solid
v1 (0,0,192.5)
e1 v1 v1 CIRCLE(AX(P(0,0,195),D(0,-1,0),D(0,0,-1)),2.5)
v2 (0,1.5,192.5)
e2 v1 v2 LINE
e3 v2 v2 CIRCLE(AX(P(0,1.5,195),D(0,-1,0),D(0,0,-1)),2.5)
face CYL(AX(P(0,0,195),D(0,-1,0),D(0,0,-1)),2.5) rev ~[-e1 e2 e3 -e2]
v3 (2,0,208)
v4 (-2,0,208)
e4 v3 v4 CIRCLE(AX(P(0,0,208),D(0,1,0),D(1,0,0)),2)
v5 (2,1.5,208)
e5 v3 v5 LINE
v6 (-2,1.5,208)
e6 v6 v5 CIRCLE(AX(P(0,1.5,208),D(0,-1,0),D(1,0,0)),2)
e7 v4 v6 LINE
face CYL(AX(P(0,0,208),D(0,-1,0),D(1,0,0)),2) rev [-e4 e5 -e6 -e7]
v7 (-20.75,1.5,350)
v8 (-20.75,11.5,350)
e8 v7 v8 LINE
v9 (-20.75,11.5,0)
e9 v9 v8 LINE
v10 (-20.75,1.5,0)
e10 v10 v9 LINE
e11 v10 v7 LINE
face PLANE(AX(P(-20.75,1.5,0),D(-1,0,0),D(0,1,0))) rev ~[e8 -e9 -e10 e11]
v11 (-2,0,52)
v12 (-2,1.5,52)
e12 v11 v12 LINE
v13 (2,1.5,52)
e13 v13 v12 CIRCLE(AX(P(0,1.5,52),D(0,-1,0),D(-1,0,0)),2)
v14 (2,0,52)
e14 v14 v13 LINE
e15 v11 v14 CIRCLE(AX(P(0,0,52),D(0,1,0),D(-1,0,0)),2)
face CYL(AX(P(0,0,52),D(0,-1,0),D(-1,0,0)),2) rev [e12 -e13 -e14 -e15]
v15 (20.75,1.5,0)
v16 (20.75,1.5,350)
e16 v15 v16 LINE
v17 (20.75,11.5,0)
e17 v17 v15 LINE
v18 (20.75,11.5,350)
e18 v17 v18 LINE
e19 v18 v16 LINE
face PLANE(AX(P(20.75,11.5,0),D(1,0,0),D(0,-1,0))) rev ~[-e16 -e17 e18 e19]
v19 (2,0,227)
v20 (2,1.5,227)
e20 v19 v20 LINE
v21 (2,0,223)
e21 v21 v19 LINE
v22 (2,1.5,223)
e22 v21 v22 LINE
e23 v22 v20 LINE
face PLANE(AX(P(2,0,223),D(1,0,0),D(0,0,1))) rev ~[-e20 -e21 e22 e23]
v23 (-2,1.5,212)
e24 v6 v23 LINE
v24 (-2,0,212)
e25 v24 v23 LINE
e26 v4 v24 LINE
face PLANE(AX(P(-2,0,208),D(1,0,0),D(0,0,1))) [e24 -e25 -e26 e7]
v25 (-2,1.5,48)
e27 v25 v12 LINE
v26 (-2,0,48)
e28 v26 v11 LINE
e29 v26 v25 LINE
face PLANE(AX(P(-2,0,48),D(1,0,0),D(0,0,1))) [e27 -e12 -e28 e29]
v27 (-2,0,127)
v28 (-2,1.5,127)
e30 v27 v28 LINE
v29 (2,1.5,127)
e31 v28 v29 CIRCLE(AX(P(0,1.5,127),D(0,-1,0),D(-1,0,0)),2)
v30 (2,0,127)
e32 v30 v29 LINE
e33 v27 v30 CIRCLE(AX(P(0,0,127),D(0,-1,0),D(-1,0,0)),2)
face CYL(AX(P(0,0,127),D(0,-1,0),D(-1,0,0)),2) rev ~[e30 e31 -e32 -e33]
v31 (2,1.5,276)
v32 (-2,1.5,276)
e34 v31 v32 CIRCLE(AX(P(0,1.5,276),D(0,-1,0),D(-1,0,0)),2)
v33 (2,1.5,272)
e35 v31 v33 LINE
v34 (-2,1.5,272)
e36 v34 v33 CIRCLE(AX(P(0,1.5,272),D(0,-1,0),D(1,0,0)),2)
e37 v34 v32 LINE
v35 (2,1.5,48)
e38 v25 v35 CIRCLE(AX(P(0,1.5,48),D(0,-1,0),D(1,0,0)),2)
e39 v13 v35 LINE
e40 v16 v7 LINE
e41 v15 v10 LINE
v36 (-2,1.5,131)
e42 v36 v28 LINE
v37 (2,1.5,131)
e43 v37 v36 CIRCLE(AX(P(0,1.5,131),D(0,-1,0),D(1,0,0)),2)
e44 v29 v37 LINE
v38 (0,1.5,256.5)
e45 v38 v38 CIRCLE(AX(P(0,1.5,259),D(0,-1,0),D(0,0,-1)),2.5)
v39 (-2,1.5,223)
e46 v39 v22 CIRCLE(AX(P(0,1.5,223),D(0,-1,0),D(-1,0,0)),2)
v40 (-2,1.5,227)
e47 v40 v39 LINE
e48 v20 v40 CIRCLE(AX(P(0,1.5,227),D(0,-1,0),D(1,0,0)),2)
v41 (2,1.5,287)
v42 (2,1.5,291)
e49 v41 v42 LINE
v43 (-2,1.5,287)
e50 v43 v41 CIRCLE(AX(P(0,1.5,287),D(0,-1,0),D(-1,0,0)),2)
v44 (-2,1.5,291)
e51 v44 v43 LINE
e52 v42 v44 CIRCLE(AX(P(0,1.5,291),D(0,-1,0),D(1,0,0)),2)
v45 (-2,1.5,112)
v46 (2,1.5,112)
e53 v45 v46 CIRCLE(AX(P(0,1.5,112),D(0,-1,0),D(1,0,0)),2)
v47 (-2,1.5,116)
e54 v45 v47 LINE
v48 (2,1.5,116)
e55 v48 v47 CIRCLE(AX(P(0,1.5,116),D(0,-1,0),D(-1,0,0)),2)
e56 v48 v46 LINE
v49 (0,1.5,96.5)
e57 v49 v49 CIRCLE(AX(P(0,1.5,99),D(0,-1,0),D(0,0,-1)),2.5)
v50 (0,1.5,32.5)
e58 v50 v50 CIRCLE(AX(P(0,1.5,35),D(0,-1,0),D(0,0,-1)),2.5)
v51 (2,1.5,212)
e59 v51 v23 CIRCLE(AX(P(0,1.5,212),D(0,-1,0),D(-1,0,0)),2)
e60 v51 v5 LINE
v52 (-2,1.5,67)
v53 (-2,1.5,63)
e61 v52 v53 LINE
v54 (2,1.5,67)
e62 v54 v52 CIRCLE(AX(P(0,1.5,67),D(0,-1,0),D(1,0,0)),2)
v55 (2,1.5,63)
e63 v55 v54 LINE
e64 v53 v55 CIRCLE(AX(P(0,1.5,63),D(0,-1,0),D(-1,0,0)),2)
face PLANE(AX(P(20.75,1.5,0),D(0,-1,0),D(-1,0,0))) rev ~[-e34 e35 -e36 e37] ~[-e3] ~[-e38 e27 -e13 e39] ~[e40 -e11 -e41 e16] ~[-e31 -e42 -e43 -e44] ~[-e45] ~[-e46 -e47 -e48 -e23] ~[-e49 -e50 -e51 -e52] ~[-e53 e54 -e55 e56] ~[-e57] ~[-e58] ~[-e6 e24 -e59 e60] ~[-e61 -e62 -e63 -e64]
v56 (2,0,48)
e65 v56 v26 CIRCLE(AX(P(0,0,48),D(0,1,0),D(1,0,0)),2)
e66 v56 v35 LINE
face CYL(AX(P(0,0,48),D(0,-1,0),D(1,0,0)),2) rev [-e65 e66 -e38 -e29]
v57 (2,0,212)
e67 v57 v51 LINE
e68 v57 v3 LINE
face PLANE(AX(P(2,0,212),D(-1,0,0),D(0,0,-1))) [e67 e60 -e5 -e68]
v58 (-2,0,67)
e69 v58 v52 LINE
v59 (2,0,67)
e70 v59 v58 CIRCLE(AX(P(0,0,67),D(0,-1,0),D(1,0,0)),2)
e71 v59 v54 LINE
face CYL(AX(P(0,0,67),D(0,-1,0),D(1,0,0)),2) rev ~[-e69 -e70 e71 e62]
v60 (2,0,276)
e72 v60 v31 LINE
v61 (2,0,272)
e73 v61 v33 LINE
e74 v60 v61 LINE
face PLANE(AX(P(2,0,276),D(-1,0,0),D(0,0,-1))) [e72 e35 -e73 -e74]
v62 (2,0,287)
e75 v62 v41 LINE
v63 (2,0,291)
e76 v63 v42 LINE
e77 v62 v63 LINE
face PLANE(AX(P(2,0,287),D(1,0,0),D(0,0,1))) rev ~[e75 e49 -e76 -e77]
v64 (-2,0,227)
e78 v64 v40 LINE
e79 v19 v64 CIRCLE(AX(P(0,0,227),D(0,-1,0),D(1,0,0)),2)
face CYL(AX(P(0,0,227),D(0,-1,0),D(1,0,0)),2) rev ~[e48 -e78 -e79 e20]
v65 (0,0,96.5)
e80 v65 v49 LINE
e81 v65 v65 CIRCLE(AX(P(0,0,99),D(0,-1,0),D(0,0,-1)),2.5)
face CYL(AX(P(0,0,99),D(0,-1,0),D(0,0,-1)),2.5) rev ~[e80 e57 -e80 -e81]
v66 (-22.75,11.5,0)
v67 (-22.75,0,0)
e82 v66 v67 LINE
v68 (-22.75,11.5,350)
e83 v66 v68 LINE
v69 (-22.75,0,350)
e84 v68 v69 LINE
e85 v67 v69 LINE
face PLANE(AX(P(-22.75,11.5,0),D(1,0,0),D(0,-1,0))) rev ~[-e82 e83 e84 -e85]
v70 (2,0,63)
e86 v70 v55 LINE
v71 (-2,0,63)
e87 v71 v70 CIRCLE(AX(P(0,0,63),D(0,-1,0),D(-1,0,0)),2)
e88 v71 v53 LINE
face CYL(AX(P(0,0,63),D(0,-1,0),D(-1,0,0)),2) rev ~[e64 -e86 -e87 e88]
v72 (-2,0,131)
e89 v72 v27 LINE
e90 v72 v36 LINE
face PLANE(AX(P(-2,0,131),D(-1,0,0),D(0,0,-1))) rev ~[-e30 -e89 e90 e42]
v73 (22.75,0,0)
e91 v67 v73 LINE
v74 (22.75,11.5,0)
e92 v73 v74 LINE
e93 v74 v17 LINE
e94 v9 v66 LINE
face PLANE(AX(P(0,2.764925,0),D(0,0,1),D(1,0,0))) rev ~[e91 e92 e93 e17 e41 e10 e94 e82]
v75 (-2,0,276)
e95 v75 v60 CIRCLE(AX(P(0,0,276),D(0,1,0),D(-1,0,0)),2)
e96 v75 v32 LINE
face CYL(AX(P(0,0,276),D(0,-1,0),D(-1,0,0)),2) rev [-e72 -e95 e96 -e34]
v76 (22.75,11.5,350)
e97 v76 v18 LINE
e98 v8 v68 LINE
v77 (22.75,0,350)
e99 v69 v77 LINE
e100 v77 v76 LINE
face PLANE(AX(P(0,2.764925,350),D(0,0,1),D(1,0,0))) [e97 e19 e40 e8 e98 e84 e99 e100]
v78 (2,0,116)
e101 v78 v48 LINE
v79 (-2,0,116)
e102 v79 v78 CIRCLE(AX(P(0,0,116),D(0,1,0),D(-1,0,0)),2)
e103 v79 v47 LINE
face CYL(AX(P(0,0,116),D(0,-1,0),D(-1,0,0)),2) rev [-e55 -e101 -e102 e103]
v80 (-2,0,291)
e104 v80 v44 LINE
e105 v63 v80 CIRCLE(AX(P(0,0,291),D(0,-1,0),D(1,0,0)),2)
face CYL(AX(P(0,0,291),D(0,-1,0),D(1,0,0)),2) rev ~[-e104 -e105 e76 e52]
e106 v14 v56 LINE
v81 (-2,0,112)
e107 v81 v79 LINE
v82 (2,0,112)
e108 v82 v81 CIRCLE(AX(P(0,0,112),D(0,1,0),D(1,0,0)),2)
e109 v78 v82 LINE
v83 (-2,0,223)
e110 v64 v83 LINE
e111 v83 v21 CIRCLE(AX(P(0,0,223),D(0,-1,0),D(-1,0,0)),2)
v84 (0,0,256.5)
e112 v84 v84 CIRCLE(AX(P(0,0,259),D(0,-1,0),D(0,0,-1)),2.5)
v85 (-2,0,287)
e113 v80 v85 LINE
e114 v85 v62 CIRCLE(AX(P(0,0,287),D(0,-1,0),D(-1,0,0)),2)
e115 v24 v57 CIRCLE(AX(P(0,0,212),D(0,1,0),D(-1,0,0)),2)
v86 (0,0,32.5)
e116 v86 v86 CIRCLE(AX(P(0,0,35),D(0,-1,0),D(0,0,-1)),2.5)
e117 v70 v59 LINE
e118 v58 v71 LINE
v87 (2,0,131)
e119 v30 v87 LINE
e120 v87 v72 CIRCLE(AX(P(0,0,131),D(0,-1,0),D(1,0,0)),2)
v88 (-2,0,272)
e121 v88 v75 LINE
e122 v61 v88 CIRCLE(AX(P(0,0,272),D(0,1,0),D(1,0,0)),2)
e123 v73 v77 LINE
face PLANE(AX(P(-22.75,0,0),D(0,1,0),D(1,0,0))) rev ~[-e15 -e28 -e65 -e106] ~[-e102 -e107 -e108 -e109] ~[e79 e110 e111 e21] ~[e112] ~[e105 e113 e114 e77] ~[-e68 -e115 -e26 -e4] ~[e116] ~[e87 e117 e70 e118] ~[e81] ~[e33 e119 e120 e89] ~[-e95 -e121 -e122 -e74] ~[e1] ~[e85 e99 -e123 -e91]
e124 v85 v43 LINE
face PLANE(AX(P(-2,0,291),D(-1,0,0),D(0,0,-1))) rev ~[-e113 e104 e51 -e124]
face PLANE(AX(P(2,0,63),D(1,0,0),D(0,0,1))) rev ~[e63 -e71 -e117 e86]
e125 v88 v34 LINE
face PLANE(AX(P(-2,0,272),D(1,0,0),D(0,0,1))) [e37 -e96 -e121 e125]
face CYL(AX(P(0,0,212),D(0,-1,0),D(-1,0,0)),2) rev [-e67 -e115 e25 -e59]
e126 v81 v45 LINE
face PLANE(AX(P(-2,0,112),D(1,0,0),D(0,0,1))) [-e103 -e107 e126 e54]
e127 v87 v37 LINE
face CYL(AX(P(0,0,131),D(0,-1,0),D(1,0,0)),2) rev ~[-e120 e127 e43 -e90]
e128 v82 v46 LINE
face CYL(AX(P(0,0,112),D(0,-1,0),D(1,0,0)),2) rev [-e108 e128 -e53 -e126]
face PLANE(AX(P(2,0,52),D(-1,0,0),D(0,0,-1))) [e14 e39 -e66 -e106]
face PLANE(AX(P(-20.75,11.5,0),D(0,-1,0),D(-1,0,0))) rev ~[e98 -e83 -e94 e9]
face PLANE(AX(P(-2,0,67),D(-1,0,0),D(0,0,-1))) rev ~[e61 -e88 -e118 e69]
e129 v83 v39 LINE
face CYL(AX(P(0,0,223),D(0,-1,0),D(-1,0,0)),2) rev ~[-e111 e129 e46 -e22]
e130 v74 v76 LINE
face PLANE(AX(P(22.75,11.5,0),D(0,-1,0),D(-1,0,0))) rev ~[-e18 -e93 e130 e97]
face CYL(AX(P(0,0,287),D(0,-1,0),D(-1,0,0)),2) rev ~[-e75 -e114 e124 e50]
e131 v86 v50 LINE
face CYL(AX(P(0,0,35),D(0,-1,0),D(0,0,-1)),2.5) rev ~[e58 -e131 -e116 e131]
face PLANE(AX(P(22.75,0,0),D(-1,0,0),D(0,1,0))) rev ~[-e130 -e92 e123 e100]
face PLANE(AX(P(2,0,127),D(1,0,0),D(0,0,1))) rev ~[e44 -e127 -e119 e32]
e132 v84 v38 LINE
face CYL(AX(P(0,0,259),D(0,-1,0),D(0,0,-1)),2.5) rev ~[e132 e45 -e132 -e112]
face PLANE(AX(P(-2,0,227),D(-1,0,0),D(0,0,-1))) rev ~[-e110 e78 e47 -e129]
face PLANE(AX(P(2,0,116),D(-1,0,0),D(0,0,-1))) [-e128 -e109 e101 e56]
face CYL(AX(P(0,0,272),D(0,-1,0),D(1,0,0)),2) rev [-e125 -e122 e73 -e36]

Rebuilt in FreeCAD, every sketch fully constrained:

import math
import FreeCAD as App
import Part
import Sketcher
from FreeCAD import Vector


def add_polygon(sketch, points):
    """Adds a closed chain of lines whose ends are joined by coincident constraints."""
    first, n = sketch.GeometryCount, len(points)
    for a, b in zip(points, points[1:] + points[:1]):
        sketch.addGeometry(Part.LineSegment(App.Vector(*a, 0), App.Vector(*b, 0)), False)
    for i in range(n):
        sketch.addConstraint(Sketcher.Constraint("Coincident", first + i, 2, first + (i + 1) % n, 1))

doc = App.newDocument("Part")
body = doc.addObject("PartDesign::Body", "Body")

# Sketch on XY plane
sketch1 = body.newObject("Sketcher::SketchObject", "Sketch")
sketch1.AttachmentSupport = (doc.getObject("XY_Plane"), [""])
sketch1.MapMode = "FlatFace"
add_polygon(sketch1, [(-22.8, 0), (22.8, 0), (22.8, 11.5), (20.8, 11.5), (20.8, 1.5), (-20.8, 1.5), (-20.8, 11.5), (-22.8, 11.5)])  # lines 0-7
sketch1.addConstraint(Sketcher.Constraint("Horizontal", 0))
sketch1.addConstraint(Sketcher.Constraint("Vertical", 1))
sketch1.addConstraint(Sketcher.Constraint("Horizontal", 2))
sketch1.addConstraint(Sketcher.Constraint("Vertical", 3))
sketch1.addConstraint(Sketcher.Constraint("Horizontal", 4))
sketch1.addConstraint(Sketcher.Constraint("Vertical", 5))
sketch1.addConstraint(Sketcher.Constraint("Horizontal", 6))
sketch1.addConstraint(Sketcher.Constraint("Vertical", 7))
sketch1.addConstraint(Sketcher.Constraint("Symmetric", 0, 2, 7, 2, -1, 1))
sketch1.addConstraint(Sketcher.Constraint("Symmetric", 2, 2, 5, 2, -2))
sketch1.addConstraint(Sketcher.Constraint("DistanceX", 2, 2, 2, 1, 2.0))
sketch1.addConstraint(Sketcher.Constraint("DistanceY", 3, 2, 3, 1, 10.0))
sketch1.addConstraint(Sketcher.Constraint("DistanceX", 0, 1, 0, 2, 45.5))
sketch1.addConstraint(Sketcher.Constraint("DistanceY", 1, 1, 1, 2, 11.5))
pad1 = body.newObject("PartDesign::Pad", "Pad")
pad1.Profile = sketch1
pad1.Length = 350

# Sketch on XZ plane
sketch2 = body.newObject("Sketcher::SketchObject", "Sketch001")
sketch2.AttachmentSupport = (doc.getObject("XZ_Plane"), [""])
sketch2.MapMode = "FlatFace"
sketch2.addGeometry(Part.Circle(Vector(0, 35, 0), Vector(0, 0, 1), 2.5), False)
sketch2.addGeometry(Part.LineSegment(Vector(2, 48, 0), Vector(2, 52, 0)), False)
sketch2.addGeometry(Part.ArcOfCircle(Part.Circle(Vector(0, 52, 0), Vector(0, 0, 1), 2), math.radians(0), math.radians(180)), False)
sketch2.addGeometry(Part.LineSegment(Vector(-2, 52, 0), Vector(-2, 48, 0)), False)
sketch2.addGeometry(Part.ArcOfCircle(Part.Circle(Vector(0, 48, 0), Vector(0, 0, 1), 2), math.radians(180), math.radians(360)), False)
sketch2.addGeometry(Part.LineSegment(Vector(-2, 67, 0), Vector(-2, 63, 0)), False)
sketch2.addGeometry(Part.ArcOfCircle(Part.Circle(Vector(0, 63, 0), Vector(0, 0, 1), 2), math.radians(180), math.radians(360)), False)
sketch2.addGeometry(Part.LineSegment(Vector(2, 63, 0), Vector(2, 67, 0)), False)
sketch2.addGeometry(Part.ArcOfCircle(Part.Circle(Vector(0, 67, 0), Vector(0, 0, 1), 2), math.radians(0), math.radians(180)), False)
sketch2.addConstraint(Sketcher.Constraint("Tangent", 1, 2, 2, 1))
sketch2.addConstraint(Sketcher.Constraint("Tangent", 2, 2, 3, 1))
sketch2.addConstraint(Sketcher.Constraint("Tangent", 3, 2, 4, 1))
sketch2.addConstraint(Sketcher.Constraint("Tangent", 4, 2, 1, 1))
sketch2.addConstraint(Sketcher.Constraint("Tangent", 5, 2, 6, 1))
sketch2.addConstraint(Sketcher.Constraint("Tangent", 6, 2, 7, 1))
sketch2.addConstraint(Sketcher.Constraint("Tangent", 7, 2, 8, 1))
sketch2.addConstraint(Sketcher.Constraint("Tangent", 8, 2, 5, 1))
sketch2.addConstraint(Sketcher.Constraint("Vertical", 1))
sketch2.addConstraint(Sketcher.Constraint("Vertical", 3))
sketch2.addConstraint(Sketcher.Constraint("Vertical", 5))
sketch2.addConstraint(Sketcher.Constraint("Vertical", 7))
sketch2.addConstraint(Sketcher.Constraint("Equal", 4, 6))
sketch2.addConstraint(Sketcher.Constraint("PointOnObject", 0, 3, -2))
sketch2.addConstraint(Sketcher.Constraint("PointOnObject", 2, 3, -2))
sketch2.addConstraint(Sketcher.Constraint("PointOnObject", 6, 3, -2))
sketch2.addConstraint(Sketcher.Constraint("Equal", 3, 5))
sketch2.addConstraint(Sketcher.Constraint("Diameter", 0, 5.0))
sketch2.addConstraint(Sketcher.Constraint("Radius", 2, 2.0))
sketch2.addConstraint(Sketcher.Constraint("DistanceY", 1, 1, 1, 2, 4.0))
sketch2.addConstraint(Sketcher.Constraint("DistanceY", -1, 1, 0, 3, 35.0))
sketch2.addConstraint(Sketcher.Constraint("DistanceY", -1, 1, 2, 3, 52.0))
sketch2.addConstraint(Sketcher.Constraint("DistanceY", -1, 1, 6, 3, 63.0))
pocket1 = body.newObject("PartDesign::Pocket", "Pocket")
pocket1.Profile = sketch2
pocket1.Length = 350
doc.recompute()

linearpattern = body.newObject("PartDesign::LinearPattern", "LinearPattern")
linearpattern.Originals = [pocket1]
linearpattern.Direction = (doc.getObject("Z_Axis"), [""])
linearpattern.Mode = "offset"
linearpattern.Offset = 64
linearpattern.Occurrences = 2
body.Tip = linearpattern
doc.recompute()

linearpattern2 = body.newObject("PartDesign::LinearPattern", "LinearPattern001")
linearpattern2.Originals = [pocket1]
linearpattern2.Direction = (doc.getObject("Z_Axis"), [""])
linearpattern2.Mode = "offset"
linearpattern2.Offset = 160
linearpattern2.Occurrences = 2
body.Tip = linearpattern2

# Sketch on XZ plane
sketch3 = body.newObject("Sketcher::SketchObject", "Sketch002")
sketch3.AttachmentSupport = (doc.getObject("XZ_Plane"), [""])
sketch3.MapMode = "FlatFace"
sketch3.addGeometry(Part.Circle(Vector(0, 259, 0), Vector(0, 0, 1), 2.5), False)
sketch3.addGeometry(Part.LineSegment(Vector(2, 272, 0), Vector(2, 276, 0)), False)
sketch3.addGeometry(Part.ArcOfCircle(Part.Circle(Vector(0, 276, 0), Vector(0, 0, 1), 2), math.radians(0), math.radians(180)), False)
sketch3.addGeometry(Part.LineSegment(Vector(-2, 276, 0), Vector(-2, 272, 0)), False)
sketch3.addGeometry(Part.ArcOfCircle(Part.Circle(Vector(0, 272, 0), Vector(0, 0, 1), 2), math.radians(180), math.radians(360)), False)
sketch3.addGeometry(Part.LineSegment(Vector(-2, 291, 0), Vector(-2, 287, 0)), False)
sketch3.addGeometry(Part.ArcOfCircle(Part.Circle(Vector(0, 287, 0), Vector(0, 0, 1), 2), math.radians(180), math.radians(360)), False)
sketch3.addGeometry(Part.LineSegment(Vector(2, 287, 0), Vector(2, 291, 0)), False)
sketch3.addGeometry(Part.ArcOfCircle(Part.Circle(Vector(0, 291, 0), Vector(0, 0, 1), 2), math.radians(0), math.radians(180)), False)
sketch3.addConstraint(Sketcher.Constraint("Tangent", 1, 2, 2, 1))
sketch3.addConstraint(Sketcher.Constraint("Tangent", 2, 2, 3, 1))
sketch3.addConstraint(Sketcher.Constraint("Tangent", 3, 2, 4, 1))
sketch3.addConstraint(Sketcher.Constraint("Tangent", 4, 2, 1, 1))
sketch3.addConstraint(Sketcher.Constraint("Tangent", 5, 2, 6, 1))
sketch3.addConstraint(Sketcher.Constraint("Tangent", 6, 2, 7, 1))
sketch3.addConstraint(Sketcher.Constraint("Tangent", 7, 2, 8, 1))
sketch3.addConstraint(Sketcher.Constraint("Tangent", 8, 2, 5, 1))
sketch3.addConstraint(Sketcher.Constraint("Vertical", 1))
sketch3.addConstraint(Sketcher.Constraint("Vertical", 3))
sketch3.addConstraint(Sketcher.Constraint("Vertical", 5))
sketch3.addConstraint(Sketcher.Constraint("Vertical", 7))
sketch3.addConstraint(Sketcher.Constraint("Equal", 4, 6))
sketch3.addConstraint(Sketcher.Constraint("PointOnObject", 0, 3, -2))
sketch3.addConstraint(Sketcher.Constraint("PointOnObject", 2, 3, -2))
sketch3.addConstraint(Sketcher.Constraint("PointOnObject", 6, 3, -2))
sketch3.addConstraint(Sketcher.Constraint("Equal", 3, 5))
sketch3.addConstraint(Sketcher.Constraint("Diameter", 0, 5.0))
sketch3.addConstraint(Sketcher.Constraint("Radius", 2, 2.0))
sketch3.addConstraint(Sketcher.Constraint("DistanceY", 1, 1, 1, 2, 4.0))
sketch3.addConstraint(Sketcher.Constraint("DistanceY", -1, 1, 0, 3, 259.0))
sketch3.addConstraint(Sketcher.Constraint("DistanceY", -1, 1, 2, 3, 276.0))
sketch3.addConstraint(Sketcher.Constraint("DistanceY", -1, 1, 6, 3, 287.0))
pocket2 = body.newObject("PartDesign::Pocket", "Pocket001")
pocket2.Profile = sketch3
pocket2.Length = 350

# Sketch on XZ plane
sketch4 = body.newObject("Sketcher::SketchObject", "Sketch003")
sketch4.AttachmentSupport = (doc.getObject("XZ_Plane"), [""])
sketch4.MapMode = "FlatFace"
sketch4.addGeometry(Part.Circle(Vector(0, 195, 0), Vector(0, 0, 1), 2.5), False)
sketch4.addGeometry(Part.LineSegment(Vector(2, 208, 0), Vector(2, 212, 0)), False)
sketch4.addGeometry(Part.ArcOfCircle(Part.Circle(Vector(0, 212, 0), Vector(0, 0, 1), 2), math.radians(0), math.radians(180)), False)
sketch4.addGeometry(Part.LineSegment(Vector(-2, 212, 0), Vector(-2, 208, 0)), False)
sketch4.addGeometry(Part.ArcOfCircle(Part.Circle(Vector(0, 208, 0), Vector(0, 0, 1), 2), math.radians(180), math.radians(360)), False)
sketch4.addGeometry(Part.LineSegment(Vector(-2, 227, 0), Vector(-2, 223, 0)), False)
sketch4.addGeometry(Part.ArcOfCircle(Part.Circle(Vector(0, 223, 0), Vector(0, 0, 1), 2), math.radians(180), math.radians(360)), False)
sketch4.addGeometry(Part.LineSegment(Vector(2, 223, 0), Vector(2, 227, 0)), False)
sketch4.addGeometry(Part.ArcOfCircle(Part.Circle(Vector(0, 227, 0), Vector(0, 0, 1), 2), math.radians(0), math.radians(180)), False)
sketch4.addConstraint(Sketcher.Constraint("Tangent", 1, 2, 2, 1))
sketch4.addConstraint(Sketcher.Constraint("Tangent", 2, 2, 3, 1))
sketch4.addConstraint(Sketcher.Constraint("Tangent", 3, 2, 4, 1))
sketch4.addConstraint(Sketcher.Constraint("Tangent", 4, 2, 1, 1))
sketch4.addConstraint(Sketcher.Constraint("Tangent", 5, 2, 6, 1))
sketch4.addConstraint(Sketcher.Constraint("Tangent", 6, 2, 7, 1))
sketch4.addConstraint(Sketcher.Constraint("Tangent", 7, 2, 8, 1))
sketch4.addConstraint(Sketcher.Constraint("Tangent", 8, 2, 5, 1))
sketch4.addConstraint(Sketcher.Constraint("Vertical", 1))
sketch4.addConstraint(Sketcher.Constraint("Vertical", 3))
sketch4.addConstraint(Sketcher.Constraint("Vertical", 5))
sketch4.addConstraint(Sketcher.Constraint("Vertical", 7))
sketch4.addConstraint(Sketcher.Constraint("Equal", 4, 6))
sketch4.addConstraint(Sketcher.Constraint("PointOnObject", 0, 3, -2))
sketch4.addConstraint(Sketcher.Constraint("PointOnObject", 2, 3, -2))
sketch4.addConstraint(Sketcher.Constraint("PointOnObject", 6, 3, -2))
sketch4.addConstraint(Sketcher.Constraint("Equal", 3, 5))
sketch4.addConstraint(Sketcher.Constraint("Diameter", 0, 5.0))
sketch4.addConstraint(Sketcher.Constraint("Radius", 2, 2.0))
sketch4.addConstraint(Sketcher.Constraint("DistanceY", 1, 1, 1, 2, 4.0))
sketch4.addConstraint(Sketcher.Constraint("DistanceY", -1, 1, 0, 3, 195.0))
sketch4.addConstraint(Sketcher.Constraint("DistanceY", -1, 1, 2, 3, 212.0))
sketch4.addConstraint(Sketcher.Constraint("DistanceY", -1, 1, 6, 3, 223.0))
pocket3 = body.newObject("PartDesign::Pocket", "Pocket002")
pocket3.Profile = sketch4
pocket3.Length = 350

doc.recompute()
